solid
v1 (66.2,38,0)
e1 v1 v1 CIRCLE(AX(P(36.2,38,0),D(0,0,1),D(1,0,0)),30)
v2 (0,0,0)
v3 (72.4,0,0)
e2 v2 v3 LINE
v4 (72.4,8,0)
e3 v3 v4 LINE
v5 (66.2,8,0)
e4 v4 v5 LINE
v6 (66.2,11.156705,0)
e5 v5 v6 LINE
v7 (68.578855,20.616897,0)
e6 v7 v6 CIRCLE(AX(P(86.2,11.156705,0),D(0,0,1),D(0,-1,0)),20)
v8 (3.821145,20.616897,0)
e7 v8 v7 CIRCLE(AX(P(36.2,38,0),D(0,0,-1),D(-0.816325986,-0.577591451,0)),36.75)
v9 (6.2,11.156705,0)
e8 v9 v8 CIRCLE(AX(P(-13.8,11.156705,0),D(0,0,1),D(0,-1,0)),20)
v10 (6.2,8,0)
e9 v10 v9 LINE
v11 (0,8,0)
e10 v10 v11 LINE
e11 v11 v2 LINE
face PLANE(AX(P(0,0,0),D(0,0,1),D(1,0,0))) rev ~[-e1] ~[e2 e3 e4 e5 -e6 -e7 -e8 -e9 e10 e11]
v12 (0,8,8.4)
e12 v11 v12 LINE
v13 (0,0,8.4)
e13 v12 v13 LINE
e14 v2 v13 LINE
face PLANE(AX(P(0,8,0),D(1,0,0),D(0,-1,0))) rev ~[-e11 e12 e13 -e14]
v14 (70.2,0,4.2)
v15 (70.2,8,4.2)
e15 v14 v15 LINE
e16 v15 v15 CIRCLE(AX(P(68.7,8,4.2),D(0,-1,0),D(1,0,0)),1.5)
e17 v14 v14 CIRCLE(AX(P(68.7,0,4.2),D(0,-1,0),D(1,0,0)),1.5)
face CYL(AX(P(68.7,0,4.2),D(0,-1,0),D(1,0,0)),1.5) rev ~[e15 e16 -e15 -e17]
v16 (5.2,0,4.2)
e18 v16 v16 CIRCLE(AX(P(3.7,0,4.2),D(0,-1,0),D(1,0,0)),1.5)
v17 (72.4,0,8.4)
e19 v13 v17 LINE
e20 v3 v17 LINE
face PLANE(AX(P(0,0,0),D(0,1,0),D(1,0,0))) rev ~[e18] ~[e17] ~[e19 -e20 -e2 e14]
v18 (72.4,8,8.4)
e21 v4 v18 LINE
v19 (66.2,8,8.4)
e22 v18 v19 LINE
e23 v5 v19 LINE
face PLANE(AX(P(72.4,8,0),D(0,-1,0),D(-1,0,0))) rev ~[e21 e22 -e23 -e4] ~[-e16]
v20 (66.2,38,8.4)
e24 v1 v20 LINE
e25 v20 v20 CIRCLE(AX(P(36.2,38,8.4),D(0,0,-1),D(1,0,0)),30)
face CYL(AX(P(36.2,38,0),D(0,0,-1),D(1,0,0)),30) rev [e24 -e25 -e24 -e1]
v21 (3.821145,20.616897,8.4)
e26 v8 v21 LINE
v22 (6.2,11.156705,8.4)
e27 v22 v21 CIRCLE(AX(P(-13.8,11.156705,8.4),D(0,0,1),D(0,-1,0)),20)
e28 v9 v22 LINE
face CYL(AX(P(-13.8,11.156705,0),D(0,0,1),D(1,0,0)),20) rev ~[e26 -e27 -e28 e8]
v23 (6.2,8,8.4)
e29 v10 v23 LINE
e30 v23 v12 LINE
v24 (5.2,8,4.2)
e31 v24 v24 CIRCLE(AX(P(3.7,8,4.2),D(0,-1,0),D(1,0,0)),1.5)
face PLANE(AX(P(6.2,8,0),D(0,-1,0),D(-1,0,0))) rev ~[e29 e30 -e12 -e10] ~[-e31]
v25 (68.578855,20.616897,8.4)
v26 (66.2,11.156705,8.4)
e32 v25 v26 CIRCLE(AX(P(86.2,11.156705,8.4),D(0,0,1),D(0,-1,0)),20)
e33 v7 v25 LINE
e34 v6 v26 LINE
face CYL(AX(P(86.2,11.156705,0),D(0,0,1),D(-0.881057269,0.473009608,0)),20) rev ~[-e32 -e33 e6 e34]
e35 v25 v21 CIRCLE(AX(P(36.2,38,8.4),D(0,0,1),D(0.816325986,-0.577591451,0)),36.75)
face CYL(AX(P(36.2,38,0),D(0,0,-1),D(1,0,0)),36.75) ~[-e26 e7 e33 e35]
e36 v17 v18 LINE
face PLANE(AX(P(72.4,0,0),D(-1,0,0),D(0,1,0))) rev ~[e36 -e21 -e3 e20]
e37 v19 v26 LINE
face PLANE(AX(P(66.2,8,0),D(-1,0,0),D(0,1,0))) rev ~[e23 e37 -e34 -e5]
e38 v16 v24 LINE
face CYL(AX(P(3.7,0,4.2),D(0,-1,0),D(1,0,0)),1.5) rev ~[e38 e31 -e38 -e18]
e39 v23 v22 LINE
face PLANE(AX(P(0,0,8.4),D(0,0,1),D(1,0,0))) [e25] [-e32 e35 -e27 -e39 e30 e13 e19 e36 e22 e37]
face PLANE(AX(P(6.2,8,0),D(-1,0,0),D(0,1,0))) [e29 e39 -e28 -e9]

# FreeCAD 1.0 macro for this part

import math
import FreeCAD as App
import Part
import Sketcher

V = App.Vector
Q = App.Units.Quantity


def edges_at(feature, points):
    """Names of the edges that pass closest to the given points."""
    edges = feature.Shape.Edges
    near = lambda p: min(range(len(edges)), key=lambda i: edges[i].distToShape(Part.Vertex(*p))[0])
    return sorted({f"Edge{near(p) + 1}" for p in points})

doc = App.newDocument("Part")
params = doc.addObject("Spreadsheet::Sheet", "Params")
for row, (alias, value) in enumerate([
    ("sketch1_diameter", "60 mm"),
    ("sketch1_height", "8 mm"),
    ("sketch1_radius", "36.75 mm"),
    ("sketch1_width", "72.4 mm"),
    ("pad1_length", "8.4 mm"),
    ("fillet_radius", "20 mm"),
    ("sketch2_diameter", "3 mm"),
    ("pocket1_length", "8 mm"),
], start=1):
    params.set(f"A{row}", alias)
    params.set(f"B{row}", "=" + value)
    params.setAlias(f"B{row}", alias)

body = doc.addObject("PartDesign::Body", "Body")

# Sketch on XY plane
sketch1 = body.newObject("Sketcher::SketchObject", "Sketch")
sketch1.AttachmentSupport = (doc.getObject("XY_Plane"), [""])
sketch1.MapMode = "FlatFace"
sketch1.addGeometry(Part.LineSegment(V(0, 8, 0), V(0, 0, 0)), False)
sketch1.addGeometry(Part.LineSegment(V(0, 0, 0), V(72, 0, 0)), False)
sketch1.addGeometry(Part.LineSegment(V(72, 0, 0), V(72, 8, 0)), False)
sketch1.addGeometry(Part.LineSegment(V(72, 8, 0), V(66, 8, 0)), False)
sketch1.addGeometry(Part.LineSegment(V(66, 8, 0), V(66, 17, 0)), False)
sketch1.addGeometry(Part.ArcOfCircle(Part.Circle(V(36, 38, 0), V(0, 0, 1), 37), math.radians(-35), math.radians(215)), False)
sketch1.addGeometry(Part.LineSegment(V(6, 17, 0), V(6, 8, 0)), False)
sketch1.addGeometry(Part.LineSegment(V(6, 8, 0), V(0, 8, 0)), False)
sketch1.addGeometry(Part.Circle(V(36, 38, 0), V(0, 0, 1), 30), False)
sketch1.addConstraint(Sketcher.Constraint("Coincident", 0, 2, 1, 1))
sketch1.addConstraint(Sketcher.Constraint("Coincident", 1, 2, 2, 1))
sketch1.addConstraint(Sketcher.Constraint("Coincident", 2, 2, 3, 1))
sketch1.addConstraint(Sketcher.Constraint("Coincident", 3, 2, 4, 1))
sketch1.addConstraint(Sketcher.Constraint("Coincident", 4, 2, 5, 1))
sketch1.addConstraint(Sketcher.Constraint("Coincident", 5, 2, 6, 1))
sketch1.addConstraint(Sketcher.Constraint("Coincident", 6, 2, 7, 1))
sketch1.addConstraint(Sketcher.Constraint("Coincident", 7, 2, 0, 1))
sketch1.addConstraint(Sketcher.Constraint("Vertical", 0))
sketch1.addConstraint(Sketcher.Constraint("Horizontal", 1))
sketch1.addConstraint(Sketcher.Constraint("Vertical", 2))
sketch1.addConstraint(Sketcher.Constraint("Horizontal", 3))
sketch1.addConstraint(Sketcher.Constraint("Vertical", 4))
sketch1.addConstraint(Sketcher.Constraint("Vertical", 6))
sketch1.addConstraint(Sketcher.Constraint("Horizontal", 7))
sketch1.addConstraint(Sketcher.Constraint("Coincident", 0, 2, -1, 1))
sketch1.addConstraint(Sketcher.Constraint("Coincident", 8, 3, 5, 3))
sketch1.addConstraint(Sketcher.Constraint("Horizontal", 4, 2, 5, 2))
sketch1.addConstraint(Sketcher.Constraint("Horizontal", 3, 2, 6, 2))
sketch1.addConstraint(Sketcher.Constraint("Equal", 3, 7))
sketch1.addConstraint(Sketcher.Constraint("Diameter", 8, Q("60 mm")))
sketch1.addConstraint(Sketcher.Constraint("DistanceY", 0, 2, 0, 1, Q("8 mm")))
sketch1.addConstraint(Sketcher.Constraint("Radius", 5, Q("36.75 mm")))
sketch1.addConstraint(Sketcher.Constraint("DistanceX", 1, 1, 1, 2, Q("72.4 mm")))
sketch1.addConstraint(Sketcher.Constraint("DistanceY", 2, 2, 5, 3, Q("30 mm")))
sketch1.addConstraint(Sketcher.Constraint("DistanceX", 5, 3, 3, 2, Q("30 mm")))
sketch1.setExpression("Constraints[20]", "Params.sketch1_diameter")
sketch1.setExpression("Constraints[21]", "Params.sketch1_height")
sketch1.setExpression("Constraints[22]", "Params.sketch1_radius")
sketch1.setExpression("Constraints[23]", "Params.sketch1_width")
pad1 = body.newObject("PartDesign::Pad", "Pad")
pad1.Profile = sketch1
pad1.setExpression("Length", "Params.pad1_length")
doc.recompute()

fillet = body.newObject("PartDesign::Fillet", "Fillet")
fillet.Base = (pad1, edges_at(pad1, [(66.2, 16.773, 4.2), (6.2, 16.773, 4.2)]))
fillet.setExpression("Radius", "Params.fillet_radius")

# Sketch on XZ plane
sketch2 = body.newObject("Sketcher::SketchObject", "Sketch001")
sketch2.AttachmentSupport = (doc.getObject("XZ_Plane"), [""])
sketch2.MapMode = "FlatFace"
sketch2.addGeometry(Part.Circle(V(3.7, 4.2, 0), V(0, 0, 1), 1.5), False)
sketch2.addGeometry(Part.Circle(V(68.7, 4.2, 0), V(0, 0, 1), 1.5), False)
sketch2.addConstraint(Sketcher.Constraint("Equal", 0, 1))
sketch2.addConstraint(Sketcher.Constraint("Horizontal", 0, 3, 1, 3))
sketch2.addConstraint(Sketcher.Constraint("Diameter", 0, Q("3 mm")))
sketch2.addConstraint(Sketcher.Constraint("DistanceX", -1, 1, 0, 3, Q("3.7 mm")))
sketch2.addConstraint(Sketcher.Constraint("DistanceX", 0, 3, 1, 3, Q("65 mm")))
sketch2.addConstraint(Sketcher.Constraint("DistanceY", -1, 1, 0, 3, Q("4.2 mm")))
sketch2.setExpression("Constraints[2]", "Params.sketch2_diameter")
pocket1 = body.newObject("PartDesign::Pocket", "Pocket")
pocket1.Profile = sketch2
pocket1.setExpression("Length", "Params.pocket1_length")

doc.recompute()
